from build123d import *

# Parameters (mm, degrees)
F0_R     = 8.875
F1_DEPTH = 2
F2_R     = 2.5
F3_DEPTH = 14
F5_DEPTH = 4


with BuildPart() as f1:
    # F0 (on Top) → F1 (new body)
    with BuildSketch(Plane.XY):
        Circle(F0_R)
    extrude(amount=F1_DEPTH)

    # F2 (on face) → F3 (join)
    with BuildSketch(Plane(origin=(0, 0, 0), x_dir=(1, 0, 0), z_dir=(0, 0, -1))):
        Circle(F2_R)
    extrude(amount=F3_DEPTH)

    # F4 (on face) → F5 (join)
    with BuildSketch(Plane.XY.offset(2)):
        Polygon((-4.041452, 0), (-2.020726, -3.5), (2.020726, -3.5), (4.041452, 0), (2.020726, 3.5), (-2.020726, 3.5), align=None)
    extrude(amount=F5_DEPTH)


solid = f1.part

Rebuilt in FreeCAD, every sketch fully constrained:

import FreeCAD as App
import Part
import Sketcher
Q = App.Units.Quantity

doc = App.newDocument("Part")
body = doc.addObject("PartDesign::Body", "Body")

sketch1 = body.newObject("Sketcher::SketchObject", "Sketch")
sketch1.AttachmentSupport = (doc.getObject("XY_Plane"), [""])
sketch1.MapMode = "FlatFace"
sketch1.addGeometry(Part.Circle(App.Vector(0, 0, 0), App.Vector(0, 0, 1), 9), False)
sketch1.addConstraint([
    Sketcher.Constraint("Coincident", 0, 3, -1, 1),
    Sketcher.Constraint("Diameter", 0, Q("17.75 mm")),
])
pad1 = body.newObject("PartDesign::Pad", "Pad")
pad1.Profile = sketch1
pad1.Length = 2

sketch2 = body.newObject("Sketcher::SketchObject", "Sketch001")
sketch2.AttachmentSupport = (doc.getObject("XY_Plane"), [""])
sketch2.MapMode = "FlatFace"
sketch2.addGeometry(Part.Circle(App.Vector(0, 0, 0), App.Vector(0, 0, 1), 2.5), False)
sketch2.addConstraint([
    Sketcher.Constraint("Coincident", 0, 3, -1, 1),
    Sketcher.Constraint("Diameter", 0, Q("5 mm")),
])
pad2 = body.newObject("PartDesign::Pad", "Pad001")
pad2.Profile = sketch2
pad2.Length = 14
pad2.Reversed = True

sketch3 = body.newObject("Sketcher::SketchObject", "Sketch002")
sketch3.AttachmentSupport = (doc.getObject("XY_Plane"), [""])
sketch3.MapMode = "FlatFace"
sketch3.AttachmentOffset = App.Placement(App.Vector(0, 0, 2), App.Rotation())
sketch3.addGeometry([
    Part.LineSegment(App.Vector(-4, 0, 0), App.Vector(-2, -3.5, 0)),
    Part.LineSegment(App.Vector(-2, -3.5, 0), App.Vector(2, -3.5, 0)),
    Part.LineSegment(App.Vector(2, -3.5, 0), App.Vector(4, 0, 0)),
    Part.LineSegment(App.Vector(4, 0, 0), App.Vector(2, 3.5, 0)),
    Part.LineSegment(App.Vector(2, 3.5, 0), App.Vector(-2, 3.5, 0)),
    Part.LineSegment(App.Vector(-2, 3.5, 0), App.Vector(-4, 0, 0)),
], False)
sketch3.addConstraint([
    Sketcher.Constraint("Coincident", 0, 2, 1, 1),
    Sketcher.Constraint("Coincident", 1, 2, 2, 1),
    Sketcher.Constraint("Coincident", 2, 2, 3, 1),
    Sketcher.Constraint("Coincident", 3, 2, 4, 1),
    Sketcher.Constraint("Coincident", 4, 2, 5, 1),
    Sketcher.Constraint("Coincident", 5, 2, 0, 1),
    Sketcher.Constraint("Horizontal", 1),
    Sketcher.Constraint("Horizontal", 4),
    Sketcher.Constraint("Symmetric", 0, 2, 3, 2, -1, 1),
    Sketcher.Constraint("Symmetric", 2, 2, 5, 2, -1, 1),
    Sketcher.Constraint("PointOnObject", 2, 2, -1),
    Sketcher.Constraint("Parallel", 2, 5),
    Sketcher.Constraint("Vertical", 1, 2, 3, 2),
    Sketcher.Constraint("Angle", 0, Q("-59.999999 deg")),
    Sketcher.Constraint("DistanceY", 1, 2, 3, 2, Q("7 mm")),
    Sketcher.Constraint("DistanceX", 1, 1, 1, 2, Q("4.041452 mm")),
])
pad3 = body.newObject("PartDesign::Pad", "Pad002")
pad3.Profile = sketch3
pad3.Length = 4

doc.recompute()
